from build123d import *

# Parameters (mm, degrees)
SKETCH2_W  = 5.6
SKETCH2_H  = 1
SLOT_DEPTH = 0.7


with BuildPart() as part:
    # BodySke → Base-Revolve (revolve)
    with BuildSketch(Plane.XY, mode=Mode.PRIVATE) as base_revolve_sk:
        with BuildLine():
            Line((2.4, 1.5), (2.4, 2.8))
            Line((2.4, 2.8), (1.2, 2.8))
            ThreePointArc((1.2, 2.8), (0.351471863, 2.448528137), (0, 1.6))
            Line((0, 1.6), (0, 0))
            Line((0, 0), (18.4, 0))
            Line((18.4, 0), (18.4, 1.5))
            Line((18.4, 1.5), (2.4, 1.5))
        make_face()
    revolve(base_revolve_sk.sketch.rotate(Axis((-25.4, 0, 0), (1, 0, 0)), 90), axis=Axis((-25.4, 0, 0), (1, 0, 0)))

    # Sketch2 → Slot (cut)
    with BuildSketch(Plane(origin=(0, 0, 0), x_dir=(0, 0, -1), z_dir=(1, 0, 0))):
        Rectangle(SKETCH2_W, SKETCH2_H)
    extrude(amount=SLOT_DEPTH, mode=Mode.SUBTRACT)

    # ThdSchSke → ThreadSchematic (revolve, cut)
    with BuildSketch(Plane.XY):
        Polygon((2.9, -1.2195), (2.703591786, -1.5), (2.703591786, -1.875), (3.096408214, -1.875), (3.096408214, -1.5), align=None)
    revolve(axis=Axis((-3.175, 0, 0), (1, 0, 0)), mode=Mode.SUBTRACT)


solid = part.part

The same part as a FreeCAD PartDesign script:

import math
import FreeCAD as App
import Part
import Sketcher

V = App.Vector
Q = App.Units.Quantity


def add_polygon(sketch, points):
    """Adds a closed chain of lines whose ends are joined by coincident constraints."""
    first, n = sketch.GeometryCount, len(points)
    for a, b in zip(points, points[1:] + points[:1]):
        sketch.addGeometry(Part.LineSegment(App.Vector(*a, 0), App.Vector(*b, 0)), False)
    for i in range(n):
        sketch.addConstraint(Sketcher.Constraint("Coincident", first + i, 2, first + (i + 1) % n, 1))

doc = App.newDocument("Part")
body = doc.addObject("PartDesign::Body", "Body")

# Sketch on XY plane
sketch1 = body.newObject("Sketcher::SketchObject", "Sketch")
sketch1.AttachmentSupport = (doc.getObject("XY_Plane"), [""])
sketch1.MapMode = "FlatFace"
sketch1.addGeometry([
    Part.LineSegment(V(2.4, 1.5, 0), V(2.4, 2.8, 0)),  # 0
    Part.LineSegment(V(2.4, 2.8, 0), V(1.2, 2.8, 0)),  # 1
    Part.ArcOfCircle(Part.Circle(V(1.2, 1.6, 0), V(0, 0, 1), 1.2), math.radians(90), math.radians(180)),  # 2
    Part.LineSegment(V(0, 1.6, 0), V(0, 0, 0)),  # 3
    Part.LineSegment(V(0, 0, 0), V(18.4, 0, 0)),  # 4
    Part.LineSegment(V(18.4, 0, 0), V(18.4, 1.5, 0)),  # 5
    Part.LineSegment(V(18.4, 1.5, 0), V(2.4, 1.5, 0)),  # 6
], False)
sketch1.addConstraint([
    Sketcher.Constraint("Coincident", 0, 2, 1, 1),
    Sketcher.Constraint("Tangent", 1, 2, 2, 1),
    Sketcher.Constraint("Tangent", 2, 2, 3, 1),
    Sketcher.Constraint("Coincident", 3, 2, 4, 1),
    Sketcher.Constraint("Coincident", 4, 2, 5, 1),
    Sketcher.Constraint("Coincident", 5, 2, 6, 1),
    Sketcher.Constraint("Coincident", 6, 2, 0, 1),
    Sketcher.Constraint("Vertical", 0),
    Sketcher.Constraint("Horizontal", 1),
    Sketcher.Constraint("Vertical", 3),
    Sketcher.Constraint("Horizontal", 4),
    Sketcher.Constraint("Vertical", 5),
    Sketcher.Constraint("Horizontal", 6),
    Sketcher.Constraint("Coincident", 3, 2, -1, 1),
    Sketcher.Constraint("Radius", 2, 1.2),
    Sketcher.Constraint("DistanceX", 6, 2, 6, 1, 16.0),
    Sketcher.Constraint("DistanceX", 1, 2, 1, 1, 1.2),
    Sketcher.Constraint("DistanceY", 0, 1, 0, 2, 1.3),
    Sketcher.Constraint("DistanceY", 3, 2, 3, 1, 1.6),
])
revolution = body.newObject("PartDesign::Revolution", "Revolution")
revolution.Profile = sketch1
revolution.ReferenceAxis = (sketch1, ["H_Axis"])
revolution.Angle = 360

# Sketch on YZ plane
sketch2 = body.newObject("Sketcher::SketchObject", "Sketch001")
sketch2.AttachmentSupport = (doc.getObject("YZ_Plane"), [""])
sketch2.MapMode = "FlatFace"
add_polygon(sketch2, [(0.5, 2.8), (-0.5, 2.8), (-0.5, -2.8), (0.5, -2.8)])  # lines 0-3
sketch2.addConstraint([
    Sketcher.Constraint("Horizontal", 0),
    Sketcher.Constraint("Vertical", 1),
    Sketcher.Constraint("Horizontal", 2),
    Sketcher.Constraint("Vertical", 3),
    Sketcher.Constraint("Symmetric", 0, 2, 2, 2, -1, 1),
    Sketcher.Constraint("DistanceX", 0, 2, 0, 1, 1.0),
    Sketcher.Constraint("DistanceY", 1, 2, 1, 1, 5.6),
])
pocket1 = body.newObject("PartDesign::Pocket", "Pocket")
pocket1.Profile = sketch2
pocket1.Length = 0.7
pocket1.Reversed = True

# Sketch on XY plane
sketch3 = body.newObject("Sketcher::SketchObject", "Sketch002")
sketch3.AttachmentSupport = (doc.getObject("XY_Plane"), [""])
sketch3.MapMode = "FlatFace"
add_polygon(sketch3, [(2.9, -1.22), (2.7, -1.5), (2.7, -1.88), (3.1, -1.88), (3.1, -1.5)])  # lines 0-4
sketch3.addConstraint([
    Sketcher.Constraint("Vertical", 1),
    Sketcher.Constraint("Horizontal", 2),
    Sketcher.Constraint("Vertical", 3),
    Sketcher.Constraint("Horizontal", 0, 2, 3, 2),
    Sketcher.Constraint("Equal", 0, 4),
    Sketcher.Constraint("Angle", 0, Q("-125 deg")),
    Sketcher.Constraint("DistanceY", 0, 2, -1, 1, 1.5),
    Sketcher.Constraint("DistanceX", -1, 1, 4, 2, 2.9),
    Sketcher.Constraint("DistanceY", 1, 2, 1, 1, 0.375),
    Sketcher.Constraint("DistanceY", 4, 2, -1, 1, 1.2195),
])
groove = body.newObject("PartDesign::Groove", "Groove")
groove.Profile = sketch3
groove.ReferenceAxis = (sketch3, ["H_Axis"])
groove.Angle = 360

doc.recompute()
